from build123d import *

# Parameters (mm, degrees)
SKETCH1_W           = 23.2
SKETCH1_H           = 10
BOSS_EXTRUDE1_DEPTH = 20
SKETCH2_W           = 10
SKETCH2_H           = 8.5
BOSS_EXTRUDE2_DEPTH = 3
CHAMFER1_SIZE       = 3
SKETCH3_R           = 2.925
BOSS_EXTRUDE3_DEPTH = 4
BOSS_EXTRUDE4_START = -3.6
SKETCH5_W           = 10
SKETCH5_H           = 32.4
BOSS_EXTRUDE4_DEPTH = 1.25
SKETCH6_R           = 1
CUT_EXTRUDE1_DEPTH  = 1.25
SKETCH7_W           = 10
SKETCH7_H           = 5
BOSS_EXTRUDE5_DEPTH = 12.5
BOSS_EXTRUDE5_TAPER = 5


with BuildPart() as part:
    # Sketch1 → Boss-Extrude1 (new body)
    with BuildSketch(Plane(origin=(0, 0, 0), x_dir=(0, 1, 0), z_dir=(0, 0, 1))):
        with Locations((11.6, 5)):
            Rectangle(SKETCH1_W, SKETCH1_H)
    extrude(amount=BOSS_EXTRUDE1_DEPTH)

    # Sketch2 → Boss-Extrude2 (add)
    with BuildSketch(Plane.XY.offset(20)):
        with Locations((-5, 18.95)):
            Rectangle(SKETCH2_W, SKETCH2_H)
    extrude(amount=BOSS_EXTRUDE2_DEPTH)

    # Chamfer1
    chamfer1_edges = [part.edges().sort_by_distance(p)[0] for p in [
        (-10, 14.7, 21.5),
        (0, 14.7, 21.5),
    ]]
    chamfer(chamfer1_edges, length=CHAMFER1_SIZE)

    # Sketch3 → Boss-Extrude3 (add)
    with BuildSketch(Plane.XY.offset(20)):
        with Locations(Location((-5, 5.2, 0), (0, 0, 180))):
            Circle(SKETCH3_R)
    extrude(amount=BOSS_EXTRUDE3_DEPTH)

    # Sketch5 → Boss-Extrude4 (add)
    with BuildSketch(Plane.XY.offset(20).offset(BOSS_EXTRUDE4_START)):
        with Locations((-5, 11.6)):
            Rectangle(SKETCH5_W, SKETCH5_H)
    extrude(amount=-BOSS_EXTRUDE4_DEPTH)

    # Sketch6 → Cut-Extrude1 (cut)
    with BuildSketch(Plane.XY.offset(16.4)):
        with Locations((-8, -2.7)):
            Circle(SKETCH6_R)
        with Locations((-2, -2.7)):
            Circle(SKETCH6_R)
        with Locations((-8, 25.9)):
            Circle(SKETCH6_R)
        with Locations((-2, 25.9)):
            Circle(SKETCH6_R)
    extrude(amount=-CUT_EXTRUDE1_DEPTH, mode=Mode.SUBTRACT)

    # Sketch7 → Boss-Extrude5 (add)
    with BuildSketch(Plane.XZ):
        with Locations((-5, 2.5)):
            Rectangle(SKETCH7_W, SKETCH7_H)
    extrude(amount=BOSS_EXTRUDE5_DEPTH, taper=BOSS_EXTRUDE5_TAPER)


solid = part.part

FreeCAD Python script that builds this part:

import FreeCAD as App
import Part
import Sketcher

V = App.Vector
Q = App.Units.Quantity


def edges_at(feature, points):
    """Names of the edges that pass closest to the given points."""
    edges = feature.Shape.Edges
    near = lambda p: min(range(len(edges)), key=lambda i: edges[i].distToShape(Part.Vertex(*p))[0])
    return sorted({f"Edge{near(p) + 1}" for p in points})

doc = App.newDocument("Part")
body = doc.addObject("PartDesign::Body", "Body")

# Sketch on XY plane
sketch1 = doc.addObject("Sketcher::SketchObject", "Sketch")
body.addObject(sketch1)
sketch1.AttachmentSupport = (doc.XY_Plane, [""])
sketch1.MapMode = "FlatFace"
sketch1.addGeometry([
    Part.LineSegment(V(-10, 0, 0), V(0, 0, 0)),
    Part.LineSegment(V(0, 0, 0), V(0, 23, 0)),
    Part.LineSegment(V(0, 23, 0), V(-10, 23, 0)),
    Part.LineSegment(V(-10, 23, 0), V(-10, 0, 0)),
], False)
sketch1.addConstraint([
    Sketcher.Constraint("Coincident", 0, 2, 1, 1),
    Sketcher.Constraint("Coincident", 1, 2, 2, 1),
    Sketcher.Constraint("Coincident", 2, 2, 3, 1),
    Sketcher.Constraint("Coincident", 3, 2, 0, 1),
    Sketcher.Constraint("Horizontal", 0),
    Sketcher.Constraint("Vertical", 1),
    Sketcher.Constraint("Horizontal", 2),
    Sketcher.Constraint("Vertical", 3),
    Sketcher.Constraint("Coincident", 0, 2, -1, 1),
    Sketcher.Constraint("DistanceX", 0, 1, 0, 2, Q("10 mm")),
    Sketcher.Constraint("DistanceY", 1, 1, 1, 2, Q("23.2 mm")),
])
pad1 = doc.addObject("PartDesign::Pad", "Pad")
body.addObject(pad1)
pad1.Profile = sketch1
pad1.Length = 20

# Sketch on XY plane
sketch2 = doc.addObject("Sketcher::SketchObject", "Sketch001")
body.addObject(sketch2)
sketch2.AttachmentSupport = (doc.XY_Plane, [""])
sketch2.MapMode = "FlatFace"
sketch2.AttachmentOffset = App.Placement(V(0, 0, 20), App.Rotation())
sketch2.addGeometry([
    Part.LineSegment(V(-10, 23, 0), V(-10, 15, 0)),
    Part.LineSegment(V(-10, 15, 0), V(0, 15, 0)),
    Part.LineSegment(V(0, 15, 0), V(0, 23, 0)),
    Part.LineSegment(V(0, 23, 0), V(-10, 23, 0)),
], False)
sketch2.addConstraint([
    Sketcher.Constraint("Coincident", 0, 2, 1, 1),
    Sketcher.Constraint("Coincident", 1, 2, 2, 1),
    Sketcher.Constraint("Coincident", 2, 2, 3, 1),
    Sketcher.Constraint("Coincident", 3, 2, 0, 1),
    Sketcher.Constraint("Vertical", 0),
    Sketcher.Constraint("Horizontal", 1),
    Sketcher.Constraint("Vertical", 2),
    Sketcher.Constraint("Horizontal", 3),
    Sketcher.Constraint("PointOnObject", 1, 2, -2),
    Sketcher.Constraint("DistanceX", 1, 1, 1, 2, Q("10 mm")),
    Sketcher.Constraint("DistanceY", 0, 2, 0, 1, Q("8.5 mm")),
    Sketcher.Constraint("DistanceY", -1, 1, 0, 2, Q("14.7 mm")),
])
pad2 = doc.addObject("PartDesign::Pad", "Pad001")
body.addObject(pad2)
pad2.Profile = sketch2
pad2.Length = 3
doc.recompute()

chamfer = doc.addObject("PartDesign::Chamfer", "Chamfer")
body.addObject(chamfer)
chamfer.Base = (pad2, edges_at(pad2, [(-10, 14.7, 21.5), (0, 14.7, 21.5)]))
chamfer.Size = 3

# Sketch on XY plane
sketch3 = doc.addObject("Sketcher::SketchObject", "Sketch002")
body.addObject(sketch3)
sketch3.AttachmentSupport = (doc.XY_Plane, [""])
sketch3.MapMode = "FlatFace"
sketch3.AttachmentOffset = App.Placement(V(0, 0, 20), App.Rotation())
sketch3.addGeometry(Part.Circle(V(-5, 5.2, 0), V(0, 0, 1), 2.9), False)
sketch3.addConstraint([
    Sketcher.Constraint("Diameter", 0, Q("5.85 mm")),
    Sketcher.Constraint("DistanceX", 0, 3, -1, 1, Q("5 mm")),
    Sketcher.Constraint("DistanceY", -1, 1, 0, 3, Q("5.2 mm")),
])
pad3 = doc.addObject("PartDesign::Pad", "Pad002")
body.addObject(pad3)
pad3.Profile = sketch3
pad3.Length = 4

# Sketch on XY plane
sketch4 = doc.addObject("Sketcher::SketchObject", "Sketch003")
body.addObject(sketch4)
sketch4.AttachmentSupport = (doc.XY_Plane, [""])
sketch4.MapMode = "FlatFace"
sketch4.AttachmentOffset = App.Placement(V(0, 0, 16.4), App.Rotation())
sketch4.addGeometry([
    Part.LineSegment(V(-10, 28, 0), V(-10, -5, 0)),
    Part.LineSegment(V(-10, -5, 0), V(0, -5, 0)),
    Part.LineSegment(V(0, -5, 0), V(0, 28, 0)),
    Part.LineSegment(V(0, 28, 0), V(-10, 28, 0)),
], False)
sketch4.addConstraint([
    Sketcher.Constraint("Coincident", 0, 2, 1, 1),
    Sketcher.Constraint("Coincident", 1, 2, 2, 1),
    Sketcher.Constraint("Coincident", 2, 2, 3, 1),
    Sketcher.Constraint("Coincident", 3, 2, 0, 1),
    Sketcher.Constraint("Vertical", 0),
    Sketcher.Constraint("Horizontal", 1),
    Sketcher.Constraint("Vertical", 2),
    Sketcher.Constraint("Horizontal", 3),
    Sketcher.Constraint("PointOnObject", 1, 2, -2),
    Sketcher.Constraint("DistanceX", 1, 1, 1, 2, Q("10 mm")),
    Sketcher.Constraint("DistanceY", 0, 2, 0, 1, Q("32.4 mm")),
    Sketcher.Constraint("DistanceY", 0, 2, -1, 1, Q("4.6 mm")),
])
pad4 = doc.addObject("PartDesign::Pad", "Pad003")
body.addObject(pad4)
pad4.Profile = sketch4
pad4.Length = 1.25
pad4.Reversed = True

# Sketch on XY plane
sketch5 = doc.addObject("Sketcher::SketchObject", "Sketch004")
body.addObject(sketch5)
sketch5.AttachmentSupport = (doc.XY_Plane, [""])
sketch5.MapMode = "FlatFace"
sketch5.AttachmentOffset = App.Placement(V(0, 0, 16.4), App.Rotation())
sketch5.addGeometry([
    Part.Circle(V(-8, -2.7, 0), V(0, 0, 1), 1),
    Part.Circle(V(-2, -2.7, 0), V(0, 0, 1), 1),
    Part.Circle(V(-8, 25.9, 0), V(0, 0, 1), 1),
    Part.Circle(V(-2, 25.9, 0), V(0, 0, 1), 1),
], False)
sketch5.addConstraint([
    Sketcher.Constraint("Equal", 0, 1),
    Sketcher.Constraint("Equal", 1, 2),
    Sketcher.Constraint("Equal", 2, 3),
    Sketcher.Constraint("Horizontal", 0, 3, 1, 3),
    Sketcher.Constraint("Horizontal", 2, 3, 3, 3),
    Sketcher.Constraint("Vertical", 0, 3, 2, 3),
    Sketcher.Constraint("Vertical", 1, 3, 3, 3),
    Sketcher.Constraint("Diameter", 0, Q("2 mm")),
    Sketcher.Constraint("DistanceX", 0, 3, -1, 1, Q("8 mm")),
    Sketcher.Constraint("DistanceX", 1, 3, -1, 1, Q("2 mm")),
    Sketcher.Constraint("DistanceY", 0, 3, -1, 1, Q("2.7 mm")),
    Sketcher.Constraint("DistanceY", -1, 1, 2, 3, Q("25.9 mm")),
])
pocket1 = doc.addObject("PartDesign::Pocket", "Pocket")
body.addObject(pocket1)
pocket1.Profile = sketch5
pocket1.Length = 1.25

# Sketch on XZ plane
sketch6 = doc.addObject("Sketcher::SketchObject", "Sketch005")
body.addObject(sketch6)
sketch6.AttachmentSupport = (doc.XZ_Plane, [""])
sketch6.MapMode = "FlatFace"
sketch6.addGeometry([
    Part.LineSegment(V(-10, 5, 0), V(-10, 0, 0)),
    Part.LineSegment(V(-10, 0, 0), V(0, 0, 0)),
    Part.LineSegment(V(0, 0, 0), V(0, 5, 0)),
    Part.LineSegment(V(0, 5, 0), V(-10, 5, 0)),
], False)
sketch6.addConstraint([
    Sketcher.Constraint("Coincident", 0, 2, 1, 1),
    Sketcher.Constraint("Coincident", 1, 2, 2, 1),
    Sketcher.Constraint("Coincident", 2, 2, 3, 1),
    Sketcher.Constraint("Coincident", 3, 2, 0, 1),
    Sketcher.Constraint("Vertical", 0),
    Sketcher.Constraint("Horizontal", 1),
    Sketcher.Constraint("Vertical", 2),
    Sketcher.Constraint("Horizontal", 3),
    Sketcher.Constraint("Coincident", 1, 2, -1, 1),
    Sketcher.Constraint("DistanceX", 1, 1, 1, 2, Q("10 mm")),
    Sketcher.Constraint("DistanceY", 0, 2, 0, 1, Q("5 mm")),
])
pad5 = doc.addObject("PartDesign::Pad", "Pad004")
body.addObject(pad5)
pad5.Profile = sketch6
pad5.Length = 12.5
pad5.TaperAngle = -5

doc.recompute()
